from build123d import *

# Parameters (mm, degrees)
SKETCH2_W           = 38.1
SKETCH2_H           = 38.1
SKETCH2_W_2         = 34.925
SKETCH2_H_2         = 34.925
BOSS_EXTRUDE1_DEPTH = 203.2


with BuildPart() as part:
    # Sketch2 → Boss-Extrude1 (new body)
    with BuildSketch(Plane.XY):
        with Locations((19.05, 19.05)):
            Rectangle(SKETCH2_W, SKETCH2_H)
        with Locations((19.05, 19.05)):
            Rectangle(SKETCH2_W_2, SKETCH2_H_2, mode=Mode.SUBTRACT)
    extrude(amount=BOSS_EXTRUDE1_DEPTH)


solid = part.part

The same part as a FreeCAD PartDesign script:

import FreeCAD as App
import Part
import Sketcher

V = App.Vector
Q = App.Units.Quantity

doc = App.newDocument("Part")
body = doc.addObject("PartDesign::Body", "Body")

# Sketch on XY plane
sketch1 = doc.addObject("Sketcher::SketchObject", "Sketch")
body.addObject(sketch1)
sketch1.AttachmentSupport = (doc.XY_Plane, [""])
sketch1.MapMode = "FlatFace"
sketch1.addGeometry(Part.LineSegment(V(0, 38.1, 0), V(0, 0, 0)), False)
sketch1.addGeometry(Part.LineSegment(V(0, 0, 0), V(38.1, 0, 0)), False)
sketch1.addGeometry(Part.LineSegment(V(38.1, 0, 0), V(38.1, 38.1, 0)), False)
sketch1.addGeometry(Part.LineSegment(V(38.1, 38.1, 0), V(0, 38.1, 0)), False)
sketch1.addGeometry(Part.LineSegment(V(36.5125, 1.5875, 0), V(1.5875, 1.5875, 0)), False)
sketch1.addGeometry(Part.LineSegment(V(1.5875, 1.5875, 0), V(1.5875, 36.5125, 0)), False)
sketch1.addGeometry(Part.LineSegment(V(1.5875, 36.5125, 0), V(36.5125, 36.5125, 0)), False)
sketch1.addGeometry(Part.LineSegment(V(36.5125, 36.5125, 0), V(36.5125, 1.5875, 0)), False)
sketch1.addConstraint(Sketcher.Constraint("Coincident", 0, 2, 1, 1))
sketch1.addConstraint(Sketcher.Constraint("Coincident", 1, 2, 2, 1))
sketch1.addConstraint(Sketcher.Constraint("Coincident", 2, 2, 3, 1))
sketch1.addConstraint(Sketcher.Constraint("Coincident", 3, 2, 0, 1))
sketch1.addConstraint(Sketcher.Constraint("Coincident", 4, 2, 5, 1))
sketch1.addConstraint(Sketcher.Constraint("Coincident", 5, 2, 6, 1))
sketch1.addConstraint(Sketcher.Constraint("Coincident", 6, 2, 7, 1))
sketch1.addConstraint(Sketcher.Constraint("Coincident", 7, 2, 4, 1))
sketch1.addConstraint(Sketcher.Constraint("Vertical", 0))
sketch1.addConstraint(Sketcher.Constraint("Horizontal", 1))
sketch1.addConstraint(Sketcher.Constraint("Vertical", 2))
sketch1.addConstraint(Sketcher.Constraint("Horizontal", 3))
sketch1.addConstraint(Sketcher.Constraint("Horizontal", 4))
sketch1.addConstraint(Sketcher.Constraint("Vertical", 5))
sketch1.addConstraint(Sketcher.Constraint("Horizontal", 6))
sketch1.addConstraint(Sketcher.Constraint("Vertical", 7))
sketch1.addConstraint(Sketcher.Constraint("Coincident", 0, 2, -1, 1))
sketch1.addConstraint(Sketcher.Constraint("Equal", 3, 0))
sketch1.addConstraint(Sketcher.Constraint("Equal", 6, 5))
sketch1.addConstraint(Sketcher.Constraint("DistanceX", 1, 1, 1, 2, Q("1.5 in")))
sketch1.addConstraint(Sketcher.Constraint("DistanceX", 4, 2, 4, 1, Q("1.375 in")))
sketch1.addConstraint(Sketcher.Constraint("DistanceX", -1, 1, 4, 2, Q("0.0625 in")))
sketch1.addConstraint(Sketcher.Constraint("DistanceY", -1, 1, 4, 2, Q("0.0625 in")))
pad1 = doc.addObject("PartDesign::Pad", "Pad")
body.addObject(pad1)
pad1.Profile = sketch1
pad1.Length = Q("8 in")

doc.recompute()
